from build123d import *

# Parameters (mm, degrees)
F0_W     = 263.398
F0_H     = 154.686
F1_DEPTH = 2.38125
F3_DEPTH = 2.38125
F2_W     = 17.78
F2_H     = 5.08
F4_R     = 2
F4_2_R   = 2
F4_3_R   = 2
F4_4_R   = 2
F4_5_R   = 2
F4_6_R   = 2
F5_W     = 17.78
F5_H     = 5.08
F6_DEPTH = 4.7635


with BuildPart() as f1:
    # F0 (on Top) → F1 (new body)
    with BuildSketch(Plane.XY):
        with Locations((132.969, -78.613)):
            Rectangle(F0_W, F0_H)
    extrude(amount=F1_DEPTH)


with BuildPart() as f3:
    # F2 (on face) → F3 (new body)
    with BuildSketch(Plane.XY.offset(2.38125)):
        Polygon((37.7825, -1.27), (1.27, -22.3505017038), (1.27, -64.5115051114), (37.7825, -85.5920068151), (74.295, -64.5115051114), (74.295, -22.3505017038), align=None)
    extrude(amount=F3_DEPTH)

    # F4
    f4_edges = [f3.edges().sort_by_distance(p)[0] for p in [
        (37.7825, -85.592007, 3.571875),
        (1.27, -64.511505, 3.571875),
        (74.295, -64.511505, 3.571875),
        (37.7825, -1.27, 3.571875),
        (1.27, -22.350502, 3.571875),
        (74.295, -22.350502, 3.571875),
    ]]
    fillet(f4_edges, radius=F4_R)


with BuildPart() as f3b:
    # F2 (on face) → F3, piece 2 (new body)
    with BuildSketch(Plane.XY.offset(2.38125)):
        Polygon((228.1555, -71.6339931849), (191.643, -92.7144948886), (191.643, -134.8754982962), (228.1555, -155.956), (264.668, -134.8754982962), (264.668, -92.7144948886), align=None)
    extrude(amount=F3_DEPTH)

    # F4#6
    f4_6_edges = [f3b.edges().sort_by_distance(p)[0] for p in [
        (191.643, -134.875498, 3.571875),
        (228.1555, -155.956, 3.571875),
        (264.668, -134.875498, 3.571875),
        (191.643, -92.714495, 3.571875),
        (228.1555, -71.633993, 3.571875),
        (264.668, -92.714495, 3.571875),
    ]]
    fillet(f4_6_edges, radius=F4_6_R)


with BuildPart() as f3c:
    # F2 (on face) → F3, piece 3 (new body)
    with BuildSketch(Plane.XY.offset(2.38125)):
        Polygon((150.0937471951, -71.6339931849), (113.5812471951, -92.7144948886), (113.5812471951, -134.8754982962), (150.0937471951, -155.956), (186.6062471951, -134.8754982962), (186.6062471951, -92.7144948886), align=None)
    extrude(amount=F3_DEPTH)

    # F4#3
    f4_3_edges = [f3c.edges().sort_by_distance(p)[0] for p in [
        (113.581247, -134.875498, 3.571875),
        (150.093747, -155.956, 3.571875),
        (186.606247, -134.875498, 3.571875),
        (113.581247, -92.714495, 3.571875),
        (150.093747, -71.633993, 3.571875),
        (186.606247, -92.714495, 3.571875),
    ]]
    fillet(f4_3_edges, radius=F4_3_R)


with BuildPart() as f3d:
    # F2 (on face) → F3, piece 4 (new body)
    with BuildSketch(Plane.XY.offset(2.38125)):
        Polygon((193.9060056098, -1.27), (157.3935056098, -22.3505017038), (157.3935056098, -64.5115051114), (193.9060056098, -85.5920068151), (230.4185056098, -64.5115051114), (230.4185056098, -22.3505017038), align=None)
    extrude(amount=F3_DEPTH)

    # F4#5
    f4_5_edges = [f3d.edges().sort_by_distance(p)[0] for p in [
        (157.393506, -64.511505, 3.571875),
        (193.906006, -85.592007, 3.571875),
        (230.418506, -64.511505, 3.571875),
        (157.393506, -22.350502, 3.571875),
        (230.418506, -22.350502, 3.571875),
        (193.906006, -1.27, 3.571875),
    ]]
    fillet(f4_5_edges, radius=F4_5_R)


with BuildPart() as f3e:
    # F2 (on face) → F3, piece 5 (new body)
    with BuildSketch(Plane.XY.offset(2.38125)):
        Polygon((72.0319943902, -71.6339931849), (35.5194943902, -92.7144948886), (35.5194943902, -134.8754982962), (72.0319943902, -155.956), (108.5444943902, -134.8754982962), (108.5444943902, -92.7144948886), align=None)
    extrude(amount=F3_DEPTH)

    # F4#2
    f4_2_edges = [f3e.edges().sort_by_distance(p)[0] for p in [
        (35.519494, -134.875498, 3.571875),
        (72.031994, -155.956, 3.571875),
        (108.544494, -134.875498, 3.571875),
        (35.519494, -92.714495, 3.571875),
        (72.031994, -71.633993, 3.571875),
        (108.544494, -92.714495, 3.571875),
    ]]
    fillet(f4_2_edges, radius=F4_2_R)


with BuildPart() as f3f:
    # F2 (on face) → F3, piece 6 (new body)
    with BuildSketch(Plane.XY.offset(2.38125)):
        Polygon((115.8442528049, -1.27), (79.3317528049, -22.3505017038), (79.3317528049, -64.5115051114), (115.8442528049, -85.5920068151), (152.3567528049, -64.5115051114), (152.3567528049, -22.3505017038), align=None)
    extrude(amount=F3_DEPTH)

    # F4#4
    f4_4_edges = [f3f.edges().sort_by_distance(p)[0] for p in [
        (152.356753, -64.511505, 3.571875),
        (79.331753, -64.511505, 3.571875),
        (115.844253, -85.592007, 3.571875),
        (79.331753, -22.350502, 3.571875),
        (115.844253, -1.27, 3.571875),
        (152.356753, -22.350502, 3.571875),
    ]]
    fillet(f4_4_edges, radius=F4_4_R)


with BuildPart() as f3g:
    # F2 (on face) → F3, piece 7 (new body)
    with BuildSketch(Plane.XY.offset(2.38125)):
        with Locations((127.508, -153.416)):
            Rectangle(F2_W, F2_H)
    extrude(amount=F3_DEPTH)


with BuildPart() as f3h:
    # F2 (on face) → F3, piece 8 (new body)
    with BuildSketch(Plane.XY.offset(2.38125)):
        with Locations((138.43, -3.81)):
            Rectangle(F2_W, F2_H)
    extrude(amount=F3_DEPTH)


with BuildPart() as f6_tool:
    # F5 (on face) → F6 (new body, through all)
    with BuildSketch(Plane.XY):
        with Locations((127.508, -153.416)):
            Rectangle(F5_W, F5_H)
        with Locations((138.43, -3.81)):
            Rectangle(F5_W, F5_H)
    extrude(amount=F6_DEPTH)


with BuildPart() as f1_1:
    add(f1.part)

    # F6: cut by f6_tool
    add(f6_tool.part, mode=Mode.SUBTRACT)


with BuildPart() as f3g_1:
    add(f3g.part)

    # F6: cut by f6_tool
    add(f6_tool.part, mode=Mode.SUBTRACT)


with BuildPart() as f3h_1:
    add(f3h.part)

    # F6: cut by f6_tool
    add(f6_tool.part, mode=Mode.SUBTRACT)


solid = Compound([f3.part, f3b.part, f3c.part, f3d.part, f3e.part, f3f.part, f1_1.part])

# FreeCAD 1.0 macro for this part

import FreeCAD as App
import Part
import Sketcher
from FreeCAD import Vector
Q = App.Units.Quantity


def edges_at(feature, points):
    """Names of the edges that pass closest to the given points."""
    edges = feature.Shape.Edges
    near = lambda p: min(range(len(edges)), key=lambda i: edges[i].distToShape(Part.Vertex(*p))[0])
    return sorted({f"Edge{near(p) + 1}" for p in points})


def add_polygon(sketch, points):
    """Adds a closed chain of lines whose ends are joined by coincident constraints."""
    first, n = sketch.GeometryCount, len(points)
    for a, b in zip(points, points[1:] + points[:1]):
        sketch.addGeometry(Part.LineSegment(App.Vector(*a, 0), App.Vector(*b, 0)), False)
    for i in range(n):
        sketch.addConstraint(Sketcher.Constraint("Coincident", first + i, 2, first + (i + 1) % n, 1))

doc = App.newDocument("Part")
body = doc.addObject("PartDesign::Body", "Body")

# Sketch on XY plane
sketch1 = body.newObject("Sketcher::SketchObject", "Sketch")
sketch1.AttachmentSupport = (doc.getObject("XY_Plane"), [""])
sketch1.MapMode = "FlatFace"
add_polygon(sketch1, [(1, -1), (1, -156), (265, -156), (265, -1)])  # lines 0-3
sketch1.addConstraint([
    Sketcher.Constraint("Vertical", 0),
    Sketcher.Constraint("Horizontal", 1),
    Sketcher.Constraint("Vertical", 2),
    Sketcher.Constraint("Horizontal", 3),
    Sketcher.Constraint("DistanceX", 1, 1, 1, 2, Q("10.37 in")),
    Sketcher.Constraint("DistanceY", 0, 2, 0, 1, Q("6.09 in")),
    Sketcher.Constraint("DistanceX", -1, 1, 0, 2, Q("0.05 in")),
    Sketcher.Constraint("DistanceY", 0, 2, -1, 1, Q("6.14 in")),
])
pad1 = body.newObject("PartDesign::Pad", "Pad")
pad1.Profile = sketch1
pad1.Length = Q("0.09375 in")
body2 = doc.addObject("PartDesign::Body", "Body001")

# Sketch on XY plane
sketch2 = body2.newObject("Sketcher::SketchObject", "Sketch001")
sketch2.AttachmentSupport = (doc.getObject("XY_Plane001"), [""])
sketch2.MapMode = "FlatFace"
sketch2.AttachmentOffset = App.Placement(Vector(0, 0, 0.09375 * 25.4), App.Rotation())
add_polygon(sketch2, [(38, -1), (1, -22), (1, -65), (38, -86), (74, -65), (74, -22)])  # lines 0-5
sketch2.addConstraint([
    Sketcher.Constraint("Vertical", 1),
    Sketcher.Constraint("Vertical", 4),
    Sketcher.Constraint("Parallel", 0, 3),
    Sketcher.Constraint("Parallel", 2, 5),
    Sketcher.Constraint("Horizontal", 1, 2, 3, 2),
    Sketcher.Constraint("Horizontal", 0, 2, 4, 2),
    Sketcher.Constraint("Vertical", 2, 2, 5, 2),
    Sketcher.Constraint("Angle", 0, Q("-150 deg")),
    Sketcher.Constraint("DistanceX", -1, 1, 0, 2, Q("0.05 in")),
    Sketcher.Constraint("DistanceY", 5, 2, -1, 1, Q("0.05 in")),
    Sketcher.Constraint("DistanceX", -1, 1, 3, 2, Q("2.925 in")),
    Sketcher.Constraint("DistanceY", 1, 2, 1, 1, Q("42.161003 mm")),
])
pad2 = body2.newObject("PartDesign::Pad", "Pad001")
pad2.Profile = sketch2
pad2.Length = Q("0.09375 in")
doc.recompute()

fillet = body2.newObject("PartDesign::Fillet", "Fillet")
fillet.Base = (pad2, edges_at(pad2, [
    (37.782, -85.592, 3.572),
    (1.27, -64.512, 3.572),
    (74.295, -64.512, 3.572),
    (37.782, -1.27, 3.572),
    (1.27, -22.351, 3.572),
    (74.295, -22.351, 3.572),
]))
fillet.Radius = 2
body3 = doc.addObject("PartDesign::Body", "Body002")

# Sketch on XY plane
sketch3 = body3.newObject("Sketcher::SketchObject", "Sketch002")
sketch3.AttachmentSupport = (doc.getObject("XY_Plane002"), [""])
sketch3.MapMode = "FlatFace"
sketch3.AttachmentOffset = App.Placement(Vector(0, 0, 0.09375 * 25.4), App.Rotation())
add_polygon(sketch3, [(228, -72), (192, -93), (192, -135), (228, -156), (265, -135), (265, -93)])  # lines 0-5
sketch3.addConstraint([
    Sketcher.Constraint("Vertical", 1),
    Sketcher.Constraint("Vertical", 4),
    Sketcher.Constraint("Parallel", 0, 3),
    Sketcher.Constraint("Parallel", 2, 5),
    Sketcher.Constraint("Horizontal", 1, 2, 3, 2),
    Sketcher.Constraint("Horizontal", 0, 2, 4, 2),
    Sketcher.Constraint("Vertical", 2, 2, 5, 2),
    Sketcher.Constraint("Angle", 0, Q("-150 deg")),
    Sketcher.Constraint("DistanceY", 2, 2, -1, 1, Q("6.14 in")),
    Sketcher.Constraint("DistanceX", -1, 1, 3, 2, Q("10.42 in")),
    Sketcher.Constraint("DistanceX", -1, 1, 0, 2, Q("7.545 in")),
    Sketcher.Constraint("DistanceY", 1, 2, 1, 1, Q("42.161003 mm")),
])
pad3 = body3.newObject("PartDesign::Pad", "Pad002")
pad3.Profile = sketch3
pad3.Length = Q("0.09375 in")
doc.recompute()

fillet2 = body3.newObject("PartDesign::Fillet", "Fillet001")
fillet2.Base = (pad3, edges_at(pad3, [
    (191.643, -134.875, 3.572),
    (228.155, -155.956, 3.572),
    (264.668, -134.875, 3.572),
    (191.643, -92.714, 3.572),
    (228.155, -71.634, 3.572),
    (264.668, -92.714, 3.572),
]))
fillet2.Radius = 2
body4 = doc.addObject("PartDesign::Body", "Body003")

# Sketch on XY plane
sketch4 = body4.newObject("Sketcher::SketchObject", "Sketch003")
sketch4.AttachmentSupport = (doc.getObject("XY_Plane003"), [""])
sketch4.MapMode = "FlatFace"
sketch4.AttachmentOffset = App.Placement(Vector(0, 0, 0.09375 * 25.4), App.Rotation())
add_polygon(sketch4, [(150, -72), (114, -93), (114, -135), (150, -156), (187, -135), (187, -93)])  # lines 0-5
sketch4.addConstraint([
    Sketcher.Constraint("Vertical", 1),
    Sketcher.Constraint("Vertical", 4),
    Sketcher.Constraint("Parallel", 0, 3),
    Sketcher.Constraint("Parallel", 2, 5),
    Sketcher.Constraint("Horizontal", 1, 2, 3, 2),
    Sketcher.Constraint("Horizontal", 0, 2, 4, 2),
    Sketcher.Constraint("Vertical", 2, 2, 5, 2),
    Sketcher.Constraint("Angle", 0, Q("-150 deg")),
    Sketcher.Constraint("DistanceY", 2, 2, -1, 1, Q("6.14 in")),
    Sketcher.Constraint("DistanceX", 1, 2, 2, 2, Q("1.4375 in")),
    Sketcher.Constraint("DistanceY", 1, 2, 1, 1, Q("42.161003 mm")),
    Sketcher.Constraint("DistanceX", -1, 1, 0, 2, Q("113.581247 mm")),
])
pad4 = body4.newObject("PartDesign::Pad", "Pad003")
pad4.Profile = sketch4
pad4.Length = Q("0.09375 in")
doc.recompute()

fillet3 = body4.newObject("PartDesign::Fillet", "Fillet002")
fillet3.Base = (pad4, edges_at(pad4, [
    (113.581, -134.875, 3.572),
    (150.094, -155.956, 3.572),
    (186.606, -134.875, 3.572),
    (113.581, -92.714, 3.572),
    (150.094, -71.634, 3.572),
    (186.606, -92.714, 3.572),
]))
fillet3.Radius = 2
body5 = doc.addObject("PartDesign::Body", "Body004")

# Sketch on XY plane
sketch5 = body5.newObject("Sketcher::SketchObject", "Sketch004")
sketch5.AttachmentSupport = (doc.getObject("XY_Plane004"), [""])
sketch5.MapMode = "FlatFace"
sketch5.AttachmentOffset = App.Placement(Vector(0, 0, 0.09375 * 25.4), App.Rotation())
add_polygon(sketch5, [(194, -1), (157, -22), (157, -65), (194, -86), (230, -65), (230, -22)])  # lines 0-5
sketch5.addConstraint([
    Sketcher.Constraint("Vertical", 1),
    Sketcher.Constraint("Vertical", 4),
    Sketcher.Constraint("Parallel", 0, 3),
    Sketcher.Constraint("Parallel", 2, 5),
    Sketcher.Constraint("Horizontal", 1, 2, 3, 2),
    Sketcher.Constraint("Horizontal", 0, 2, 4, 2),
    Sketcher.Constraint("Vertical", 2, 2, 5, 2),
    Sketcher.Constraint("Angle", 0, Q("-150 deg")),
    Sketcher.Constraint("DistanceY", 5, 2, -1, 1, Q("0.05 in")),
    Sketcher.Constraint("DistanceX", 1, 2, 2, 2, Q("1.4375 in")),
    Sketcher.Constraint("DistanceY", 1, 2, 1, 1, Q("42.161003 mm")),
    Sketcher.Constraint("DistanceX", -1, 1, 0, 2, Q("157.393506 mm")),
])
pad5 = body5.newObject("PartDesign::Pad", "Pad004")
pad5.Profile = sketch5
pad5.Length = Q("0.09375 in")
doc.recompute()

fillet4 = body5.newObject("PartDesign::Fillet", "Fillet003")
fillet4.Base = (pad5, edges_at(pad5, [
    (157.394, -64.512, 3.572),
    (193.906, -85.592, 3.572),
    (230.419, -64.512, 3.572),
    (157.394, -22.351, 3.572),
    (230.419, -22.351, 3.572),
    (193.906, -1.27, 3.572),
]))
fillet4.Radius = 2
body6 = doc.addObject("PartDesign::Body", "Body005")

# Sketch on XY plane
sketch6 = body6.newObject("Sketcher::SketchObject", "Sketch005")
sketch6.AttachmentSupport = (doc.getObject("XY_Plane005"), [""])
sketch6.MapMode = "FlatFace"
sketch6.AttachmentOffset = App.Placement(Vector(0, 0, 0.09375 * 25.4), App.Rotation())
add_polygon(sketch6, [(72, -72), (36, -93), (36, -135), (72, -156), (109, -135), (109, -93)])  # lines 0-5
sketch6.addConstraint([
    Sketcher.Constraint("Vertical", 1),
    Sketcher.Constraint("Vertical", 4),
    Sketcher.Constraint("Parallel", 0, 3),
    Sketcher.Constraint("Parallel", 2, 5),
    Sketcher.Constraint("Horizontal", 1, 2, 3, 2),
    Sketcher.Constraint("Horizontal", 0, 2, 4, 2),
    Sketcher.Constraint("Vertical", 2, 2, 5, 2),
    Sketcher.Constraint("Angle", 0, Q("-150 deg")),
    Sketcher.Constraint("DistanceY", 2, 2, -1, 1, Q("6.14 in")),
    Sketcher.Constraint("DistanceX", 1, 2, 2, 2, Q("1.4375 in")),
    Sketcher.Constraint("DistanceY", 1, 2, 1, 1, Q("42.161003 mm")),
    Sketcher.Constraint("DistanceX", -1, 1, 0, 2, Q("35.519494 mm")),
])
pad6 = body6.newObject("PartDesign::Pad", "Pad005")
pad6.Profile = sketch6
pad6.Length = Q("0.09375 in")
doc.recompute()

fillet5 = body6.newObject("PartDesign::Fillet", "Fillet004")
fillet5.Base = (pad6, edges_at(pad6, [
    (35.519, -134.875, 3.572),
    (72.032, -155.956, 3.572),
    (108.544, -134.875, 3.572),
    (35.519, -92.714, 3.572),
    (72.032, -71.634, 3.572),
    (108.544, -92.714, 3.572),
]))
fillet5.Radius = 2
body7 = doc.addObject("PartDesign::Body", "Body006")

# Sketch on XY plane
sketch7 = body7.newObject("Sketcher::SketchObject", "Sketch006")
sketch7.AttachmentSupport = (doc.getObject("XY_Plane006"), [""])
sketch7.MapMode = "FlatFace"
sketch7.AttachmentOffset = App.Placement(Vector(0, 0, 0.09375 * 25.4), App.Rotation())
add_polygon(sketch7, [(116, -1), (79, -22), (79, -65), (116, -86), (152, -65), (152, -22)])  # lines 0-5
sketch7.addConstraint([
    Sketcher.Constraint("Vertical", 1),
    Sketcher.Constraint("Vertical", 4),
    Sketcher.Constraint("Parallel", 0, 3),
    Sketcher.Constraint("Parallel", 2, 5),
    Sketcher.Constraint("Horizontal", 1, 2, 3, 2),
    Sketcher.Constraint("Horizontal", 0, 2, 4, 2),
    Sketcher.Constraint("Vertical", 2, 2, 5, 2),
    Sketcher.Constraint("Angle", 0, Q("-150 deg")),
    Sketcher.Constraint("DistanceY", 5, 2, -1, 1, Q("0.05 in")),
    Sketcher.Constraint("DistanceX", 1, 2, 2, 2, Q("1.4375 in")),
    Sketcher.Constraint("DistanceY", 1, 2, 1, 1, Q("42.161003 mm")),
    Sketcher.Constraint("DistanceX", -1, 1, 0, 2, Q("79.331753 mm")),
])
pad7 = body7.newObject("PartDesign::Pad", "Pad006")
pad7.Profile = sketch7
pad7.Length = Q("0.09375 in")
doc.recompute()

fillet6 = body7.newObject("PartDesign::Fillet", "Fillet005")
fillet6.Base = (pad7, edges_at(pad7, [
    (152.357, -64.512, 3.572),
    (79.332, -64.512, 3.572),
    (115.844, -85.592, 3.572),
    (79.332, -22.351, 3.572),
    (115.844, -1.27, 3.572),
    (152.357, -22.351, 3.572),
]))
fillet6.Radius = 2
body8 = doc.addObject("PartDesign::Body", "Body007")

# Sketch on XY plane
sketch8 = body8.newObject("Sketcher::SketchObject", "Sketch007")
sketch8.AttachmentSupport = (doc.getObject("XY_Plane007"), [""])
sketch8.MapMode = "FlatFace"
sketch8.AttachmentOffset = App.Placement(Vector(0, 0, 0.09375 * 25.4), App.Rotation())
add_polygon(sketch8, [(119, -151), (119, -156), (136, -156), (136, -151)])  # lines 0-3
sketch8.addConstraint([
    Sketcher.Constraint("Vertical", 0),
    Sketcher.Constraint("Horizontal", 1),
    Sketcher.Constraint("Vertical", 2),
    Sketcher.Constraint("Horizontal", 3),
    Sketcher.Constraint("DistanceX", 1, 1, 1, 2, Q("0.7 in")),
    Sketcher.Constraint("DistanceY", 0, 2, 0, 1, Q("0.2 in")),
    Sketcher.Constraint("DistanceX", -1, 1, 0, 2, Q("4.67 in")),
    Sketcher.Constraint("DistanceY", 0, 2, -1, 1, Q("6.14 in")),
])
pad8 = body8.newObject("PartDesign::Pad", "Pad007")
pad8.Profile = sketch8
pad8.Length = Q("0.09375 in")
body9 = doc.addObject("PartDesign::Body", "Body008")

# Sketch on XY plane
sketch9 = body9.newObject("Sketcher::SketchObject", "Sketch008")
sketch9.AttachmentSupport = (doc.getObject("XY_Plane008"), [""])
sketch9.MapMode = "FlatFace"
sketch9.AttachmentOffset = App.Placement(Vector(0, 0, 0.09375 * 25.4), App.Rotation())
add_polygon(sketch9, [(130, -1), (130, -6), (147, -6), (147, -1)])  # lines 0-3
sketch9.addConstraint([
    Sketcher.Constraint("Vertical", 0),
    Sketcher.Constraint("Horizontal", 1),
    Sketcher.Constraint("Vertical", 2),
    Sketcher.Constraint("Horizontal", 3),
    Sketcher.Constraint("DistanceX", 1, 1, 1, 2, Q("0.7 in")),
    Sketcher.Constraint("DistanceY", 0, 2, 0, 1, Q("0.2 in")),
    Sketcher.Constraint("DistanceX", -1, 1, 0, 2, Q("5.1 in")),
    Sketcher.Constraint("DistanceY", 0, 2, -1, 1, Q("0.25 in")),
])
pad9 = body9.newObject("PartDesign::Pad", "Pad008")
pad9.Profile = sketch9
pad9.Length = Q("0.09375 in")
body10 = doc.addObject("PartDesign::Body", "Body009")
body10.AllowCompound = True

# Sketch on XY plane
sketch10 = body10.newObject("Sketcher::SketchObject", "Sketch009")
sketch10.AttachmentSupport = (doc.getObject("XY_Plane009"), [""])
sketch10.MapMode = "FlatFace"
add_polygon(sketch10, [(119, -151), (119, -156), (136, -156), (136, -151)])  # lines 0-3
add_polygon(sketch10, [(130, -1), (130, -6), (147, -6), (147, -1)])  # lines 4-7
sketch10.addConstraint([
    Sketcher.Constraint("Vertical", 0),
    Sketcher.Constraint("Horizontal", 1),
    Sketcher.Constraint("Vertical", 2),
    Sketcher.Constraint("Horizontal", 3),
    Sketcher.Constraint("Vertical", 4),
    Sketcher.Constraint("Horizontal", 5),
    Sketcher.Constraint("Vertical", 6),
    Sketcher.Constraint("Horizontal", 7),
    Sketcher.Constraint("Equal", 3, 5),
    Sketcher.Constraint("Equal", 2, 4),
    Sketcher.Constraint("DistanceX", 1, 1, 1, 2, Q("0.7 in")),
    Sketcher.Constraint("DistanceY", 0, 2, 0, 1, Q("0.2 in")),
    Sketcher.Constraint("DistanceX", -1, 1, 4, 2, Q("5.1 in")),
    Sketcher.Constraint("DistanceX", -1, 1, 0, 2, Q("4.67 in")),
    Sketcher.Constraint("DistanceY", 0, 2, -1, 1, Q("6.14 in")),
    Sketcher.Constraint("DistanceY", 4, 2, -1, 1, Q("0.25 in")),
])
pad10 = body10.newObject("PartDesign::Pad", "Pad009")
pad10.Profile = sketch10
pad10.Length = 4.7635
doc.recompute()

body11 = doc.addObject("PartDesign::Body", "Body010")
body11.BaseFeature = body10
boolean = body.newObject("PartDesign::Boolean", "Boolean")
boolean.Type = "Cut"
boolean.addObjects([body11])
doc.recompute()

body12 = doc.addObject("PartDesign::Body", "Body011")
body12.BaseFeature = body10
boolean2 = body8.newObject("PartDesign::Boolean", "Boolean001")
boolean2.Type = "Cut"
boolean2.addObjects([body12])
doc.recompute()

boolean3 = body9.newObject("PartDesign::Boolean", "Boolean002")
boolean3.Type = "Cut"
boolean3.addObjects([body10])

doc.recompute()
